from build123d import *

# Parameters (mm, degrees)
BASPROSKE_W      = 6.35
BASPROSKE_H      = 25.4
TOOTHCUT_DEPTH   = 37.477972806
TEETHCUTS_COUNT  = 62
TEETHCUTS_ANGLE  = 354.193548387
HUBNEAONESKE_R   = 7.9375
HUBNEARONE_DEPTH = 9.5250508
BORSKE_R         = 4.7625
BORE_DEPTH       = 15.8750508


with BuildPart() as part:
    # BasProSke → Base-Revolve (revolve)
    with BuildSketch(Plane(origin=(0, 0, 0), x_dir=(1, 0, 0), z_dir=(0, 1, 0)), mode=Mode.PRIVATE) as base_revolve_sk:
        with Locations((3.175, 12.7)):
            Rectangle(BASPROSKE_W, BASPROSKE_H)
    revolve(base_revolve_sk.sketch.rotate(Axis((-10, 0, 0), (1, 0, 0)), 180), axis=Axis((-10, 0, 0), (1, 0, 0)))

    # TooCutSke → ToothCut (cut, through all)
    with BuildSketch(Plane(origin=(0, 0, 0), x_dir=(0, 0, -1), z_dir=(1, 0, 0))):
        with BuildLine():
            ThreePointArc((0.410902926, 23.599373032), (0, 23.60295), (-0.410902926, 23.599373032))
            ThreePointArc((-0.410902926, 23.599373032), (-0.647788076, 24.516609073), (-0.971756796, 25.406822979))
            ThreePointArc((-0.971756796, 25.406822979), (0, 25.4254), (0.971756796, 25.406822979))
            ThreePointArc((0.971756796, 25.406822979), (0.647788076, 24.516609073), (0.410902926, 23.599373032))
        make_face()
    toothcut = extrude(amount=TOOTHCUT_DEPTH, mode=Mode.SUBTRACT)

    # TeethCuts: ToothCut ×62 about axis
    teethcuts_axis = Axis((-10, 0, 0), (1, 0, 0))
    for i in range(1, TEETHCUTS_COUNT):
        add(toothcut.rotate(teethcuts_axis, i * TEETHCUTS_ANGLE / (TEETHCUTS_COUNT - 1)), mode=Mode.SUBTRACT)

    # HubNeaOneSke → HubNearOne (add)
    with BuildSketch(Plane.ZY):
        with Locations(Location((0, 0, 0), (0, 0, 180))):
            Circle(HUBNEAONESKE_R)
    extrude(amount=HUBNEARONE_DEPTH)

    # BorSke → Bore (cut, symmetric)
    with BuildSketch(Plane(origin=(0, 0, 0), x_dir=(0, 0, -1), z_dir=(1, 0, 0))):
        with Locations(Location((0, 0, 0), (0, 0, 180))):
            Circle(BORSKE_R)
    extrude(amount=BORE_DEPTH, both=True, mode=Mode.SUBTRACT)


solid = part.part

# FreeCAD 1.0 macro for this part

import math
import FreeCAD as App
import Part
import Sketcher
Q = App.Units.Quantity

doc = App.newDocument("Part")
body = doc.addObject("PartDesign::Body", "Body")

sketch1 = doc.addObject("Sketcher::SketchObject", "Sketch")
body.addObject(sketch1)
sketch1.AttachmentSupport = (doc.XZ_Plane, [""])
sketch1.MapMode = "FlatFace"
sketch1.addGeometry([
    Part.LineSegment(App.Vector(0, -25.4, 0), App.Vector(0, 0, 0)),
    Part.LineSegment(App.Vector(0, 0, 0), App.Vector(6.35, 0, 0)),
    Part.LineSegment(App.Vector(6.35, 0, 0), App.Vector(6.35, -25.4, 0)),
    Part.LineSegment(App.Vector(6.35, -25.4, 0), App.Vector(0, -25.4, 0)),
], False)
sketch1.addConstraint([
    Sketcher.Constraint("Coincident", 0, 2, 1, 1),
    Sketcher.Constraint("Coincident", 1, 2, 2, 1),
    Sketcher.Constraint("Coincident", 2, 2, 3, 1),
    Sketcher.Constraint("Coincident", 3, 2, 0, 1),
    Sketcher.Constraint("Vertical", 0),
    Sketcher.Constraint("Horizontal", 1),
    Sketcher.Constraint("Vertical", 2),
    Sketcher.Constraint("Horizontal", 3),
    Sketcher.Constraint("Coincident", 0, 2, -1, 1),
    Sketcher.Constraint("DistanceY", 0, 1, 0, 2, Q("1 in")),
    Sketcher.Constraint("DistanceX", 1, 1, 1, 2, Q("0.25 in")),
])
revolution = doc.addObject("PartDesign::Revolution", "Revolution")
body.addObject(revolution)
revolution.Profile = sketch1
revolution.ReferenceAxis = (sketch1, ["H_Axis"])
revolution.Angle = 360

sketch2 = doc.addObject("Sketcher::SketchObject", "Sketch001")
body.addObject(sketch2)
sketch2.AttachmentSupport = (doc.YZ_Plane, [""])
sketch2.MapMode = "FlatFace"
sketch2.addGeometry([
    Part.ArcOfCircle(Part.Circle(App.Vector(-0.000002, 0, 0), App.Vector(0, 0, 1), 23.602952), math.radians(-0.997511), math.radians(0.997511)),
    Part.ArcOfCircle(Part.Circle(App.Vector(21.599674, -10.048123, 0), App.Vector(0, 0, 1), 9.8425), math.radians(67.244026), math.radians(78.277616)),
    Part.ArcOfCircle(Part.Circle(App.Vector(0, 0, 0), App.Vector(0, 0, 1), 25.4254), math.radians(-2.190374), math.radians(2.190374)),
    Part.ArcOfCircle(Part.Circle(App.Vector(21.599674, 10.048123, 0), App.Vector(0, 0, 1), 9.8425), math.radians(-78.277616), math.radians(-67.244026)),
], False)
sketch2.addConstraint([
    Sketcher.Constraint("Coincident", 0, 1, 1, 2),
    Sketcher.Constraint("Coincident", 1, 1, 2, 1),
    Sketcher.Constraint("Coincident", 2, 2, 3, 2),
    Sketcher.Constraint("Coincident", 3, 1, 0, 2),
    Sketcher.Constraint("Coincident", 0, 3, -1, 1),
    Sketcher.Constraint("Coincident", 2, 3, -1, 1),
    Sketcher.Constraint("Equal", 1, 3),
    Sketcher.Constraint("Symmetric", 1, 3, 3, 3, -1),
    Sketcher.Constraint("Radius", 2, Q("1.001 in")),
    Sketcher.Constraint("Radius", 1, Q("0.3875 in")),
    Sketcher.Constraint("Radius", 0, 23.602952),
    Sketcher.Constraint("DistanceX", 1, 3, 0, 1, 1.999699),
    Sketcher.Constraint("DistanceY", 1, 1, 3, 3, 11.01988),
])
pocket1 = doc.addObject("PartDesign::Pocket", "Pocket")
body.addObject(pocket1)
pocket1.Profile = sketch2
pocket1.Type = "ThroughAll"
pocket1.Reversed = True
doc.recompute()

polarpattern = doc.addObject("PartDesign::PolarPattern", "PolarPattern")
body.addObject(polarpattern)
polarpattern.Originals = [pocket1]
polarpattern.Axis = (doc.X_Axis, [""])
polarpattern.Angle = 360
polarpattern.Occurrences = 62
body.Tip = polarpattern

sketch3 = doc.addObject("Sketcher::SketchObject", "Sketch002")
body.addObject(sketch3)
sketch3.AttachmentSupport = (doc.YZ_Plane, [""])
sketch3.MapMode = "FlatFace"
sketch3.addGeometry(Part.Circle(App.Vector(0, 0, 0), App.Vector(0, 0, 1), 7.9375), False)
sketch3.addConstraint([
    Sketcher.Constraint("Coincident", 0, 3, -1, 1),
    Sketcher.Constraint("Diameter", 0, Q("0.625 in")),
])
pad1 = doc.addObject("PartDesign::Pad", "Pad")
body.addObject(pad1)
pad1.Profile = sketch3
pad1.Length = 9.525051
pad1.Reversed = True

sketch4 = doc.addObject("Sketcher::SketchObject", "Sketch003")
body.addObject(sketch4)
sketch4.AttachmentSupport = (doc.YZ_Plane, [""])
sketch4.MapMode = "FlatFace"
sketch4.addGeometry(Part.Circle(App.Vector(0, 0, 0), App.Vector(0, 0, 1), 4.7625), False)
sketch4.addConstraint([
    Sketcher.Constraint("Coincident", 0, 3, -1, 1),
    Sketcher.Constraint("Diameter", 0, Q("0.375 in")),
])
pocket2 = doc.addObject("PartDesign::Pocket", "Pocket001")
body.addObject(pocket2)
pocket2.Profile = sketch4
pocket2.Length = 31.750102
pocket2.Midplane = True

doc.recompute()
